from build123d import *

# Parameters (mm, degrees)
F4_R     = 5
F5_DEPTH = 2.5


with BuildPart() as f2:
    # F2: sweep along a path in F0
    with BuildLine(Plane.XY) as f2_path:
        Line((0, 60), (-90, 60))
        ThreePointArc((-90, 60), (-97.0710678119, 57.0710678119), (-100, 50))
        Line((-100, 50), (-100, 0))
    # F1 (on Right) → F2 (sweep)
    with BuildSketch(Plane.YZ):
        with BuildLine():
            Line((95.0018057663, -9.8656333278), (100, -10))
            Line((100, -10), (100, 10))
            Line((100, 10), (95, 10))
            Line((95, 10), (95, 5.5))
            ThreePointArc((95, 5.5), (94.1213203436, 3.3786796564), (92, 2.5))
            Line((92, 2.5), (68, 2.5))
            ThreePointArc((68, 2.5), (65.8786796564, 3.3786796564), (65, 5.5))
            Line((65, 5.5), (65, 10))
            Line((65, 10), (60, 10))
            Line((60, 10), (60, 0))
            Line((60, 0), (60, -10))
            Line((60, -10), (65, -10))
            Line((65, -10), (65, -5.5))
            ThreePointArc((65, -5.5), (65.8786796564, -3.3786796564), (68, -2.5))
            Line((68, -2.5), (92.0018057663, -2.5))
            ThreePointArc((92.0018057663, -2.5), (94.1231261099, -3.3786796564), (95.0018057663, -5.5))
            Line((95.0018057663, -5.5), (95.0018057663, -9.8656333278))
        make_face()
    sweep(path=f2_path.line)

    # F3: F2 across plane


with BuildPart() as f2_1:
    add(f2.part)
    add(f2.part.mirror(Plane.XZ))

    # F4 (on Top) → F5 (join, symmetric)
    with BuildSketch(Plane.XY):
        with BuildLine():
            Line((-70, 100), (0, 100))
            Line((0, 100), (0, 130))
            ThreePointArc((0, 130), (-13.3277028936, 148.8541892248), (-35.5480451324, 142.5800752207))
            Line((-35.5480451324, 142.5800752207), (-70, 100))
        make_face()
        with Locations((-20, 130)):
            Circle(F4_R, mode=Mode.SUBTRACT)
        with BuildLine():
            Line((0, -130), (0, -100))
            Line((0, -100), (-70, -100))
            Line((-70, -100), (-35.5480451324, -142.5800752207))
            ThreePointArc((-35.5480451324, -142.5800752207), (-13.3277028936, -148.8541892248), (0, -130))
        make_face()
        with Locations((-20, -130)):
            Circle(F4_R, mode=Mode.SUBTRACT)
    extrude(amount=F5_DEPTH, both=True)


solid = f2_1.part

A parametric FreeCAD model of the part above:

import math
import FreeCAD as App
import Part
import Sketcher

doc = App.newDocument("Part")
params = doc.addObject("Spreadsheet::Sheet", "Params")
for row, (alias, value) in enumerate([
    ("sketch1_radius", "3 mm"),
    ("sketch1_width", "5 mm"),
    ("sketch1_width2", "24 mm"),
    ("sketch1_height", "20 mm"),
    ("sketch1_length", "5 mm"),
    ("sketch2_radius", "10 mm"),
    ("sketch2_width", "90 mm"),
    ("sketch2_height", "50 mm"),
    ("sketch3_diameter", "10 mm"),
    ("sketch3_radius", "20 mm"),
    ("sketch3_width", "70 mm"),
    ("sketch3_height", "30 mm"),
    ("pad1_length", "5 mm"),
], start=1):
    params.set(f"A{row}", alias)
    params.set(f"B{row}", "=" + value)
    params.setAlias(f"B{row}", alias)

body = doc.addObject("PartDesign::Body", "Body")

# Sketch on YZ plane
sketch1 = doc.addObject("Sketcher::SketchObject", "Sketch")
body.addObject(sketch1)
sketch1.AttachmentSupport = (doc.YZ_Plane, [""])
sketch1.MapMode = "FlatFace"
sketch1.addGeometry([
    Part.LineSegment(App.Vector(95, -9.9, 0), App.Vector(100, -10, 0)),  # 0
    Part.LineSegment(App.Vector(100, -10, 0), App.Vector(100, 10, 0)),  # 1
    Part.LineSegment(App.Vector(100, 10, 0), App.Vector(95, 10, 0)),  # 2
    Part.LineSegment(App.Vector(95, 10, 0), App.Vector(95, 5.5, 0)),  # 3
    Part.ArcOfCircle(Part.Circle(App.Vector(92, 5.5, 0), App.Vector(0, 0, 1), 3), math.radians(-90), math.radians(0)),  # 4
    Part.LineSegment(App.Vector(92, 2.5, 0), App.Vector(68, 2.5, 0)),  # 5
    Part.ArcOfCircle(Part.Circle(App.Vector(68, 5.5, 0), App.Vector(0, 0, 1), 3), math.radians(180), math.radians(270)),  # 6
    Part.LineSegment(App.Vector(65, 5.5, 0), App.Vector(65, 10, 0)),  # 7
    Part.LineSegment(App.Vector(65, 10, 0), App.Vector(60, 10, 0)),  # 8
    Part.LineSegment(App.Vector(60, 10, 0), App.Vector(60, -10, 0)),  # 9
    Part.LineSegment(App.Vector(60, -10, 0), App.Vector(65, -10, 0)),  # 10
    Part.LineSegment(App.Vector(65, -10, 0), App.Vector(65, -5.5, 0)),  # 11
    Part.ArcOfCircle(Part.Circle(App.Vector(68, -5.5, 0), App.Vector(0, 0, 1), 3), math.radians(90), math.radians(180)),  # 12
    Part.LineSegment(App.Vector(68, -2.5, 0), App.Vector(92, -2.5, 0)),  # 13
    Part.ArcOfCircle(Part.Circle(App.Vector(92, -5.5, 0), App.Vector(0, 0, 1), 3), math.radians(0), math.radians(90)),  # 14
    Part.LineSegment(App.Vector(95, -5.5, 0), App.Vector(95, -9.9, 0)),  # 15
], False)
sketch1.addConstraint([
    Sketcher.Constraint("Coincident", 0, 2, 1, 1),
    Sketcher.Constraint("Coincident", 1, 2, 2, 1),
    Sketcher.Constraint("Coincident", 2, 2, 3, 1),
    Sketcher.Constraint("Tangent", 3, 2, 4, 2),
    Sketcher.Constraint("Tangent", 4, 1, 5, 1),
    Sketcher.Constraint("Tangent", 5, 2, 6, 2),
    Sketcher.Constraint("Tangent", 6, 1, 7, 1),
    Sketcher.Constraint("Coincident", 7, 2, 8, 1),
    Sketcher.Constraint("Coincident", 8, 2, 9, 1),
    Sketcher.Constraint("Coincident", 9, 2, 10, 1),
    Sketcher.Constraint("Coincident", 10, 2, 11, 1),
    Sketcher.Constraint("Tangent", 11, 2, 12, 2),
    Sketcher.Constraint("Tangent", 12, 1, 13, 1),
    Sketcher.Constraint("Tangent", 13, 2, 14, 2),
    Sketcher.Constraint("Tangent", 14, 1, 15, 1),
    Sketcher.Constraint("Coincident", 15, 2, 0, 1),
    Sketcher.Constraint("Vertical", 1),
    Sketcher.Constraint("Horizontal", 2),
    Sketcher.Constraint("Vertical", 3),
    Sketcher.Constraint("Horizontal", 5),
    Sketcher.Constraint("Vertical", 7),
    Sketcher.Constraint("Horizontal", 8),
    Sketcher.Constraint("Vertical", 9),
    Sketcher.Constraint("Horizontal", 10),
    Sketcher.Constraint("Vertical", 11),
    Sketcher.Constraint("Horizontal", 13),
    Sketcher.Constraint("Vertical", 15),
    Sketcher.Constraint("Equal", 4, 6),
    Sketcher.Constraint("Equal", 6, 12),
    Sketcher.Constraint("Equal", 12, 14),
    Sketcher.Constraint("Symmetric", 6, 3, 12, 3, -1),
    Sketcher.Constraint("Horizontal", 2, 2, 7, 2),
    Sketcher.Constraint("Horizontal", 0, 2, 9, 2),
    Sketcher.Constraint("Equal", 2, 8),
    Sketcher.Constraint("Equal", 7, 11),
    Sketcher.Constraint("Radius", 4, 3.0),
    Sketcher.Constraint("DistanceX", 2, 2, 2, 1, 5.0),
    Sketcher.Constraint("DistanceX", 5, 2, 5, 1, 24.0),
    Sketcher.Constraint("DistanceY", 1, 1, 1, 2, 20.0),
    Sketcher.Constraint("Distance", 0, 5.0),
    Sketcher.Constraint("DistanceY", 3, 2, 3, 1, 4.5),
    Sketcher.Constraint("DistanceX", -1, 1, 4, 3, 92.0),
    Sketcher.Constraint("DistanceX", 13, 1, 13, 2, 24.001806),
])
sketch1.setExpression("Constraints[35]", "Params.sketch1_radius")
sketch1.setExpression("Constraints[36]", "Params.sketch1_width")
sketch1.setExpression("Constraints[37]", "Params.sketch1_width2")
sketch1.setExpression("Constraints[38]", "Params.sketch1_height")
sketch1.setExpression("Constraints[39]", "Params.sketch1_length")

# Sketch on XY plane
sketch2 = doc.addObject("Sketcher::SketchObject", "Sketch001")
body.addObject(sketch2)
sketch2.AttachmentSupport = (doc.XY_Plane, [""])
sketch2.MapMode = "FlatFace"
sketch2.addGeometry([
    Part.LineSegment(App.Vector(0, 60, 0), App.Vector(-90, 60, 0)),
    Part.ArcOfCircle(Part.Circle(App.Vector(-90, 50, 0), App.Vector(0, 0, 1), 10), math.radians(90), math.radians(180)),
    Part.LineSegment(App.Vector(-100, 50, 0), App.Vector(-100, 0, 0)),
], False)
sketch2.addConstraint([
    Sketcher.Constraint("Tangent", 0, 2, 1, 1),
    Sketcher.Constraint("Tangent", 1, 2, 2, 1),
    Sketcher.Constraint("Horizontal", 0),
    Sketcher.Constraint("Vertical", 2),
    Sketcher.Constraint("PointOnObject", 0, 1, -2),
    Sketcher.Constraint("PointOnObject", 2, 2, -1),
    Sketcher.Constraint("Radius", 1, 10.0),
    Sketcher.Constraint("DistanceX", 0, 2, 0, 1, 90.0),
    Sketcher.Constraint("DistanceY", 2, 2, 2, 1, 50.0),
])
sketch2.setExpression("Constraints[6]", "Params.sketch2_radius")
sketch2.setExpression("Constraints[7]", "Params.sketch2_width")
sketch2.setExpression("Constraints[8]", "Params.sketch2_height")
doc.recompute()

additivepipe = doc.addObject("PartDesign::AdditivePipe", "AdditivePipe")
body.addObject(additivepipe)
additivepipe.Profile = sketch1
additivepipe.Spine = (sketch2, ["Edge1", "Edge2", "Edge3"])
body2 = doc.addObject("PartDesign::Body", "Body001")
doc.recompute()

body2.BaseFeature = body
doc.recompute()

mirroring = doc.addObject("Part::Mirroring", "Mirroring")
mirroring.Source = body
mirroring.Base = App.Vector(0, 0, 0)
mirroring.Normal = App.Vector(0, -1, 0)
body3 = doc.addObject("PartDesign::Body", "Body002")
body3.BaseFeature = mirroring
boolean = doc.addObject("PartDesign::Boolean", "Boolean")
body2.addObject(boolean)
boolean.Type = "Fuse"
boolean.addObjects([body3])
doc.recompute()

# Sketch on XY plane
sketch3 = doc.addObject("Sketcher::SketchObject", "Sketch002")
body2.addObject(sketch3)
sketch3.AttachmentSupport = (doc.getObject("XY_Plane001"), [""])
sketch3.MapMode = "FlatFace"
sketch3.addGeometry([
    Part.LineSegment(App.Vector(-70, 100, 0), App.Vector(0, 100, 0)),  # 0
    Part.LineSegment(App.Vector(0, 100, 0), App.Vector(0, 130, 0)),  # 1
    Part.ArcOfCircle(Part.Circle(App.Vector(-20, 130, 0), App.Vector(0, 0, 1), 20), math.radians(0), math.radians(141)),  # 2
    Part.LineSegment(App.Vector(-36, 143, 0), App.Vector(-70, 100, 0)),  # 3
    Part.Circle(App.Vector(-20, 130, 0), App.Vector(0, 0, 1), 5),  # 4
    Part.LineSegment(App.Vector(0, -130, 0), App.Vector(0, -100, 0)),  # 5
    Part.LineSegment(App.Vector(0, -100, 0), App.Vector(-70, -100, 0)),  # 6
    Part.LineSegment(App.Vector(-70, -100, 0), App.Vector(-36, -143, 0)),  # 7
    Part.ArcOfCircle(Part.Circle(App.Vector(-20, -130, 0), App.Vector(0, 0, 1), 20), math.radians(-141), math.radians(0)),  # 8
    Part.Circle(App.Vector(-20, -130, 0), App.Vector(0, 0, 1), 5),  # 9
], False)
sketch3.addConstraint([
    Sketcher.Constraint("Coincident", 0, 2, 1, 1),
    Sketcher.Constraint("Tangent", 1, 2, 2, 1),
    Sketcher.Constraint("Tangent", 2, 2, 3, 1),
    Sketcher.Constraint("Coincident", 3, 2, 0, 1),
    Sketcher.Constraint("Coincident", 5, 2, 6, 1),
    Sketcher.Constraint("Coincident", 6, 2, 7, 1),
    Sketcher.Constraint("Tangent", 7, 2, 8, 1),
    Sketcher.Constraint("Tangent", 8, 2, 5, 1),
    Sketcher.Constraint("Horizontal", 0),
    Sketcher.Constraint("Vertical", 1),
    Sketcher.Constraint("Vertical", 5),
    Sketcher.Constraint("Horizontal", 6),
    Sketcher.Constraint("Coincident", 4, 3, 2, 3),
    Sketcher.Constraint("Coincident", 9, 3, 8, 3),
    Sketcher.Constraint("Equal", 2, 8),
    Sketcher.Constraint("Equal", 4, 9),
    Sketcher.Constraint("Symmetric", 0, 2, 5, 2, -1, 1),
    Sketcher.Constraint("Symmetric", 2, 3, 8, 3, -1),
    Sketcher.Constraint("Vertical", 3, 2, 6, 2),
    Sketcher.Constraint("Diameter", 4, 10.0),
    Sketcher.Constraint("Radius", 2, 20.0),
    Sketcher.Constraint("DistanceX", 0, 1, 0, 2, 70.0),
    Sketcher.Constraint("DistanceY", 1, 1, 1, 2, 30.0),
    Sketcher.Constraint("DistanceY", -1, 1, 2, 3, 130.0),
])
sketch3.setExpression("Constraints[19]", "Params.sketch3_diameter")
sketch3.setExpression("Constraints[20]", "Params.sketch3_radius")
sketch3.setExpression("Constraints[21]", "Params.sketch3_width")
sketch3.setExpression("Constraints[22]", "Params.sketch3_height")
pad1 = doc.addObject("PartDesign::Pad", "Pad")
body2.addObject(pad1)
pad1.Profile = sketch3
pad1.setExpression("Length", "Params.pad1_length")
pad1.Midplane = True
mirroring.Visibility = False

doc.recompute()
